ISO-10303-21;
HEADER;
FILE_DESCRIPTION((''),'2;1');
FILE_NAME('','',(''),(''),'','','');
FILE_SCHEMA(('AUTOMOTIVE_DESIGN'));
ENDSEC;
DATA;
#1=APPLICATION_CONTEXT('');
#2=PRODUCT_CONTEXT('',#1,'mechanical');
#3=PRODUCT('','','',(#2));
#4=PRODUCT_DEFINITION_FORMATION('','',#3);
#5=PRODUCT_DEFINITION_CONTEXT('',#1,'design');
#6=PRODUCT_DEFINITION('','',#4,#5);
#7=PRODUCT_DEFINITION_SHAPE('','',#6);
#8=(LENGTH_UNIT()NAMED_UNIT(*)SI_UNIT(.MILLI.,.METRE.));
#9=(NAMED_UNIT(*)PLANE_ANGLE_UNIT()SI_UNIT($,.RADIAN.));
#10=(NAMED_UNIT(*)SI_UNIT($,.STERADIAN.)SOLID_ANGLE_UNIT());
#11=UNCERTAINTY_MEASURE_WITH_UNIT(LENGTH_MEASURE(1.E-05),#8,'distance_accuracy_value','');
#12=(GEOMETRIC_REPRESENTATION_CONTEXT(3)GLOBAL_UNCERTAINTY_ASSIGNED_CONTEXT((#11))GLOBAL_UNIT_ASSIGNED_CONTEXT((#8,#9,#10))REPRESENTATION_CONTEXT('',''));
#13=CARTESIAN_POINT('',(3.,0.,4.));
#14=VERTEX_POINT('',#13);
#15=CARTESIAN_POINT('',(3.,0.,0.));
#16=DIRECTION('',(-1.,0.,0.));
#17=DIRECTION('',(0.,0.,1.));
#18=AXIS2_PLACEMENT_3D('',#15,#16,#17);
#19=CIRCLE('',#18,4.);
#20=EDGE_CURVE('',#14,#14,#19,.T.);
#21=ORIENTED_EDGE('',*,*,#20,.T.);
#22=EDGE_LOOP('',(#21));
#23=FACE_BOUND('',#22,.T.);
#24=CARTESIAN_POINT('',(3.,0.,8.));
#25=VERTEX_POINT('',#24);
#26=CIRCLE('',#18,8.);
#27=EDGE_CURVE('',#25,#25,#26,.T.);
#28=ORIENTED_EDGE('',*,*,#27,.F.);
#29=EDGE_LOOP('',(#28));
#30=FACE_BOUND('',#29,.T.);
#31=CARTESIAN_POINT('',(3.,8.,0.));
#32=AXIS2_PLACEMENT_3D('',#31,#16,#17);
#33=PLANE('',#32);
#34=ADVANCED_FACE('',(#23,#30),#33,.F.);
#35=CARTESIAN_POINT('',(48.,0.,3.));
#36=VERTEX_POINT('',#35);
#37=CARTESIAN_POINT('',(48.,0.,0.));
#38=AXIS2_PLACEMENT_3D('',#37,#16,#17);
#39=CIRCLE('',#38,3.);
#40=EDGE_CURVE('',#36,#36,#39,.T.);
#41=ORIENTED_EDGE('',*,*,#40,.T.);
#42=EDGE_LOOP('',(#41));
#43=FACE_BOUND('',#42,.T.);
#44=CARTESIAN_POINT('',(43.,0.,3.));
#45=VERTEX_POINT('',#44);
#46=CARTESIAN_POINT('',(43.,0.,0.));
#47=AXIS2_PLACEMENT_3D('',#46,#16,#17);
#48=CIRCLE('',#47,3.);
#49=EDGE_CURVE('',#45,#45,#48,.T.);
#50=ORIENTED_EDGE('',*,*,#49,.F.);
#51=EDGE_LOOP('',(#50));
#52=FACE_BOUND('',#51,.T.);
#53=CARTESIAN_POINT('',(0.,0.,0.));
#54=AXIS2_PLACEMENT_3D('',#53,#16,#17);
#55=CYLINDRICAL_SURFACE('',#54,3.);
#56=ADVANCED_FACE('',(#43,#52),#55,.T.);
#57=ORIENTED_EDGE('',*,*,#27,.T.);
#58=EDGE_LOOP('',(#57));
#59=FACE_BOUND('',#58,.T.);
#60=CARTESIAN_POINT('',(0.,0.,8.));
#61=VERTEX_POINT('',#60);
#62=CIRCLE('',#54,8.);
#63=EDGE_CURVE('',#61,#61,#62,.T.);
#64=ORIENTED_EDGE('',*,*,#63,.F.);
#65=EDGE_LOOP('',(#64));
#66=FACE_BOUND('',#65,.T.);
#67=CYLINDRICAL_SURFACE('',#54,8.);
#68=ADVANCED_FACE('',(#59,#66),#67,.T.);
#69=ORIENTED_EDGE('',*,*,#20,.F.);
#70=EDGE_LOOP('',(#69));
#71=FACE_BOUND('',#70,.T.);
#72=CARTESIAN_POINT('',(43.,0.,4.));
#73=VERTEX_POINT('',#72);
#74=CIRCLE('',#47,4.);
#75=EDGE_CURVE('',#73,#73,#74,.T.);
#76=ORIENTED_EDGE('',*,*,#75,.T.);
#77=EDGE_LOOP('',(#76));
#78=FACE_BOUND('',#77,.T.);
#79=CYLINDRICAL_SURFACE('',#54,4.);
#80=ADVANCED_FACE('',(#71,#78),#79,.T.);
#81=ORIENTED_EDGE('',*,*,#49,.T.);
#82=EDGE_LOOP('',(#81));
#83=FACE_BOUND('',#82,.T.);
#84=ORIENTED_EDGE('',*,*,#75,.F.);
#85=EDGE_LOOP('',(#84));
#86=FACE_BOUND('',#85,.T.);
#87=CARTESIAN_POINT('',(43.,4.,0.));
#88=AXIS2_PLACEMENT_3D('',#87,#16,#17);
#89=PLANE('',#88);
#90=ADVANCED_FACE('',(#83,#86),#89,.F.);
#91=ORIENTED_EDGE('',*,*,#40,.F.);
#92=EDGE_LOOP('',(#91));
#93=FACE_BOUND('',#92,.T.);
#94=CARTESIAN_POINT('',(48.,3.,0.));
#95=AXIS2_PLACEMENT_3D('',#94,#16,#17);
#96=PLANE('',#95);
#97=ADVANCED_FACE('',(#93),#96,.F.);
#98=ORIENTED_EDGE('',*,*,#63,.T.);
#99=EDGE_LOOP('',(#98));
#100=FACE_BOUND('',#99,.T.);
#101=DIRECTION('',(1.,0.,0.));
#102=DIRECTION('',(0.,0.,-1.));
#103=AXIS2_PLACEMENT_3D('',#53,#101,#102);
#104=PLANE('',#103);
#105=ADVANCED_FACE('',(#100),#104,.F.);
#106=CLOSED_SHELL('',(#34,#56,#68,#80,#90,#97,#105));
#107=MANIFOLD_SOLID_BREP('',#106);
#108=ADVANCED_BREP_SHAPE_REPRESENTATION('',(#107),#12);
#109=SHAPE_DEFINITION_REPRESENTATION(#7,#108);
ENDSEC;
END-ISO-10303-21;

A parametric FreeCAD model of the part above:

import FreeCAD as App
import Part
import Sketcher

V = App.Vector
Q = App.Units.Quantity


def add_polygon(sketch, points):
    """Adds a closed chain of lines whose ends are joined by coincident constraints."""
    first, n = sketch.GeometryCount, len(points)
    for a, b in zip(points, points[1:] + points[:1]):
        sketch.addGeometry(Part.LineSegment(App.Vector(*a, 0), App.Vector(*b, 0)), False)
    for i in range(n):
        sketch.addConstraint(Sketcher.Constraint("Coincident", first + i, 2, first + (i + 1) % n, 1))

doc = App.newDocument("Part")
params = doc.addObject("Spreadsheet::Sheet", "Params")
for row, (alias, value) in enumerate([
    ("sketch1_width", "48 mm"),
    ("sketch1_width2", "5 mm"),
    ("sketch1_width3", "40 mm"),
    ("sketch1_height", "8 mm"),
    ("sketch1_height2", "1 mm"),
    ("revolution_angle", "360 deg"),
], start=1):
    params.set(f"A{row}", alias)
    params.set(f"B{row}", "=" + value)
    params.setAlias(f"B{row}", alias)

body = doc.addObject("PartDesign::Body", "Body")

# Sketch on XY plane
sketch1 = body.newObject("Sketcher::SketchObject", "Sketch")
sketch1.AttachmentSupport = (doc.getObject("XY_Plane"), [""])
sketch1.MapMode = "FlatFace"
add_polygon(sketch1, [(0, 8), (0, 0), (48, 0), (48, 3), (43, 3), (43, 4), (3, 4), (3, 8)])  # lines 0-7
sketch1.addConstraint(Sketcher.Constraint("Vertical", 0))
sketch1.addConstraint(Sketcher.Constraint("Horizontal", 1))
sketch1.addConstraint(Sketcher.Constraint("Vertical", 2))
sketch1.addConstraint(Sketcher.Constraint("Horizontal", 3))
sketch1.addConstraint(Sketcher.Constraint("Vertical", 4))
sketch1.addConstraint(Sketcher.Constraint("Horizontal", 5))
sketch1.addConstraint(Sketcher.Constraint("Vertical", 6))
sketch1.addConstraint(Sketcher.Constraint("Horizontal", 7))
sketch1.addConstraint(Sketcher.Constraint("Coincident", 0, 2, -1, 1))
sketch1.addConstraint(Sketcher.Constraint("Equal", 7, 2))
sketch1.addConstraint(Sketcher.Constraint("DistanceX", 1, 1, 1, 2, Q("48 mm")))
sketch1.addConstraint(Sketcher.Constraint("DistanceX", 3, 2, 3, 1, Q("5 mm")))
sketch1.addConstraint(Sketcher.Constraint("DistanceX", 5, 2, 5, 1, Q("40 mm")))
sketch1.addConstraint(Sketcher.Constraint("DistanceY", 0, 2, 0, 1, Q("8 mm")))
sketch1.addConstraint(Sketcher.Constraint("DistanceY", 4, 1, 4, 2, Q("1 mm")))
sketch1.setExpression("Constraints[18]", "Params.sketch1_width")
sketch1.setExpression("Constraints[19]", "Params.sketch1_width2")
sketch1.setExpression("Constraints[20]", "Params.sketch1_width3")
sketch1.setExpression("Constraints[21]", "Params.sketch1_height")
sketch1.setExpression("Constraints[22]", "Params.sketch1_height2")
revolution = body.newObject("PartDesign::Revolution", "Revolution")
revolution.Profile = sketch1
revolution.ReferenceAxis = (sketch1, ["H_Axis"])
revolution.setExpression("Angle", "Params.revolution_angle")

doc.recompute()
